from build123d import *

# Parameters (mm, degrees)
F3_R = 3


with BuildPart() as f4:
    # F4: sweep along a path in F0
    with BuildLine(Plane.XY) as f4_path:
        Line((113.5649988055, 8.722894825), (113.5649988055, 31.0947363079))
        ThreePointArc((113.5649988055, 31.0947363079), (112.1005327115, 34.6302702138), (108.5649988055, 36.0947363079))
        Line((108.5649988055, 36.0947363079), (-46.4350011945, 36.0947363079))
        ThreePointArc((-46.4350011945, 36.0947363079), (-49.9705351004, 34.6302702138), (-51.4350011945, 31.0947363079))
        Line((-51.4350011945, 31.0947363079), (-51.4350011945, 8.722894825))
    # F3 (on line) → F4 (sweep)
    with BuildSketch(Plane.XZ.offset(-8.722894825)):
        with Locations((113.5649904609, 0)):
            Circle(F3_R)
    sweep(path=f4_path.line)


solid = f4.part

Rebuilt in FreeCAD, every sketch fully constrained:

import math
import FreeCAD as App
import Part
import Sketcher

doc = App.newDocument("Part")
body = doc.addObject("PartDesign::Body", "Body")

# Sketch on XZ plane
sketch1 = body.newObject("Sketcher::SketchObject", "Sketch")
sketch1.AttachmentSupport = (doc.getObject("XZ_Plane"), [""])
sketch1.MapMode = "FlatFace"
sketch1.AttachmentOffset = App.Placement(App.Vector(0, 0, -8.722895), App.Rotation())
sketch1.addGeometry(Part.Circle(App.Vector(113.6, 0, 0), App.Vector(0, 0, 1), 3), False)
sketch1.addConstraint([
    Sketcher.Constraint("PointOnObject", 0, 3, -1),
    Sketcher.Constraint("Diameter", 0, 6.0),
    Sketcher.Constraint("DistanceX", -1, 1, 0, 3, 113.56499),
])

# Sketch on XY plane
sketch2 = body.newObject("Sketcher::SketchObject", "Sketch001")
sketch2.AttachmentSupport = (doc.getObject("XY_Plane"), [""])
sketch2.MapMode = "FlatFace"
sketch2.addGeometry([
    Part.LineSegment(App.Vector(114, 9, 0), App.Vector(114, 31, 0)),  # 0
    Part.ArcOfCircle(Part.Circle(App.Vector(109, 31, 0), App.Vector(0, 0, 1), 5), math.radians(0), math.radians(90)),  # 1
    Part.LineSegment(App.Vector(109, 36, 0), App.Vector(-46, 36, 0)),  # 2
    Part.ArcOfCircle(Part.Circle(App.Vector(-46, 31, 0), App.Vector(0, 0, 1), 5), math.radians(90), math.radians(180)),  # 3
    Part.LineSegment(App.Vector(-51, 31, 0), App.Vector(-51, 9, 0)),  # 4
], False)
sketch2.addConstraint([
    Sketcher.Constraint("Tangent", 0, 2, 1, 1),
    Sketcher.Constraint("Tangent", 1, 2, 2, 1),
    Sketcher.Constraint("Tangent", 2, 2, 3, 1),
    Sketcher.Constraint("Tangent", 3, 2, 4, 1),
    Sketcher.Constraint("Vertical", 0),
    Sketcher.Constraint("Horizontal", 2),
    Sketcher.Constraint("Vertical", 4),
    Sketcher.Constraint("Equal", 1, 3),
    Sketcher.Constraint("Horizontal", 0, 1, 4, 2),
    Sketcher.Constraint("Radius", 1, 5.0),
    Sketcher.Constraint("DistanceX", 2, 2, 2, 1, 155.0),
    Sketcher.Constraint("DistanceX", -1, 1, 1, 3, 108.564999),
    Sketcher.Constraint("DistanceY", 0, 1, 0, 2, 22.371841),
    Sketcher.Constraint("DistanceY", -1, 1, 1, 3, 31.094736),
])
doc.recompute()

additivepipe = body.newObject("PartDesign::AdditivePipe", "AdditivePipe")
additivepipe.Profile = sketch1
additivepipe.Spine = (sketch2, ["Edge1", "Edge2", "Edge3", "Edge4", "Edge5"])

doc.recompute()
